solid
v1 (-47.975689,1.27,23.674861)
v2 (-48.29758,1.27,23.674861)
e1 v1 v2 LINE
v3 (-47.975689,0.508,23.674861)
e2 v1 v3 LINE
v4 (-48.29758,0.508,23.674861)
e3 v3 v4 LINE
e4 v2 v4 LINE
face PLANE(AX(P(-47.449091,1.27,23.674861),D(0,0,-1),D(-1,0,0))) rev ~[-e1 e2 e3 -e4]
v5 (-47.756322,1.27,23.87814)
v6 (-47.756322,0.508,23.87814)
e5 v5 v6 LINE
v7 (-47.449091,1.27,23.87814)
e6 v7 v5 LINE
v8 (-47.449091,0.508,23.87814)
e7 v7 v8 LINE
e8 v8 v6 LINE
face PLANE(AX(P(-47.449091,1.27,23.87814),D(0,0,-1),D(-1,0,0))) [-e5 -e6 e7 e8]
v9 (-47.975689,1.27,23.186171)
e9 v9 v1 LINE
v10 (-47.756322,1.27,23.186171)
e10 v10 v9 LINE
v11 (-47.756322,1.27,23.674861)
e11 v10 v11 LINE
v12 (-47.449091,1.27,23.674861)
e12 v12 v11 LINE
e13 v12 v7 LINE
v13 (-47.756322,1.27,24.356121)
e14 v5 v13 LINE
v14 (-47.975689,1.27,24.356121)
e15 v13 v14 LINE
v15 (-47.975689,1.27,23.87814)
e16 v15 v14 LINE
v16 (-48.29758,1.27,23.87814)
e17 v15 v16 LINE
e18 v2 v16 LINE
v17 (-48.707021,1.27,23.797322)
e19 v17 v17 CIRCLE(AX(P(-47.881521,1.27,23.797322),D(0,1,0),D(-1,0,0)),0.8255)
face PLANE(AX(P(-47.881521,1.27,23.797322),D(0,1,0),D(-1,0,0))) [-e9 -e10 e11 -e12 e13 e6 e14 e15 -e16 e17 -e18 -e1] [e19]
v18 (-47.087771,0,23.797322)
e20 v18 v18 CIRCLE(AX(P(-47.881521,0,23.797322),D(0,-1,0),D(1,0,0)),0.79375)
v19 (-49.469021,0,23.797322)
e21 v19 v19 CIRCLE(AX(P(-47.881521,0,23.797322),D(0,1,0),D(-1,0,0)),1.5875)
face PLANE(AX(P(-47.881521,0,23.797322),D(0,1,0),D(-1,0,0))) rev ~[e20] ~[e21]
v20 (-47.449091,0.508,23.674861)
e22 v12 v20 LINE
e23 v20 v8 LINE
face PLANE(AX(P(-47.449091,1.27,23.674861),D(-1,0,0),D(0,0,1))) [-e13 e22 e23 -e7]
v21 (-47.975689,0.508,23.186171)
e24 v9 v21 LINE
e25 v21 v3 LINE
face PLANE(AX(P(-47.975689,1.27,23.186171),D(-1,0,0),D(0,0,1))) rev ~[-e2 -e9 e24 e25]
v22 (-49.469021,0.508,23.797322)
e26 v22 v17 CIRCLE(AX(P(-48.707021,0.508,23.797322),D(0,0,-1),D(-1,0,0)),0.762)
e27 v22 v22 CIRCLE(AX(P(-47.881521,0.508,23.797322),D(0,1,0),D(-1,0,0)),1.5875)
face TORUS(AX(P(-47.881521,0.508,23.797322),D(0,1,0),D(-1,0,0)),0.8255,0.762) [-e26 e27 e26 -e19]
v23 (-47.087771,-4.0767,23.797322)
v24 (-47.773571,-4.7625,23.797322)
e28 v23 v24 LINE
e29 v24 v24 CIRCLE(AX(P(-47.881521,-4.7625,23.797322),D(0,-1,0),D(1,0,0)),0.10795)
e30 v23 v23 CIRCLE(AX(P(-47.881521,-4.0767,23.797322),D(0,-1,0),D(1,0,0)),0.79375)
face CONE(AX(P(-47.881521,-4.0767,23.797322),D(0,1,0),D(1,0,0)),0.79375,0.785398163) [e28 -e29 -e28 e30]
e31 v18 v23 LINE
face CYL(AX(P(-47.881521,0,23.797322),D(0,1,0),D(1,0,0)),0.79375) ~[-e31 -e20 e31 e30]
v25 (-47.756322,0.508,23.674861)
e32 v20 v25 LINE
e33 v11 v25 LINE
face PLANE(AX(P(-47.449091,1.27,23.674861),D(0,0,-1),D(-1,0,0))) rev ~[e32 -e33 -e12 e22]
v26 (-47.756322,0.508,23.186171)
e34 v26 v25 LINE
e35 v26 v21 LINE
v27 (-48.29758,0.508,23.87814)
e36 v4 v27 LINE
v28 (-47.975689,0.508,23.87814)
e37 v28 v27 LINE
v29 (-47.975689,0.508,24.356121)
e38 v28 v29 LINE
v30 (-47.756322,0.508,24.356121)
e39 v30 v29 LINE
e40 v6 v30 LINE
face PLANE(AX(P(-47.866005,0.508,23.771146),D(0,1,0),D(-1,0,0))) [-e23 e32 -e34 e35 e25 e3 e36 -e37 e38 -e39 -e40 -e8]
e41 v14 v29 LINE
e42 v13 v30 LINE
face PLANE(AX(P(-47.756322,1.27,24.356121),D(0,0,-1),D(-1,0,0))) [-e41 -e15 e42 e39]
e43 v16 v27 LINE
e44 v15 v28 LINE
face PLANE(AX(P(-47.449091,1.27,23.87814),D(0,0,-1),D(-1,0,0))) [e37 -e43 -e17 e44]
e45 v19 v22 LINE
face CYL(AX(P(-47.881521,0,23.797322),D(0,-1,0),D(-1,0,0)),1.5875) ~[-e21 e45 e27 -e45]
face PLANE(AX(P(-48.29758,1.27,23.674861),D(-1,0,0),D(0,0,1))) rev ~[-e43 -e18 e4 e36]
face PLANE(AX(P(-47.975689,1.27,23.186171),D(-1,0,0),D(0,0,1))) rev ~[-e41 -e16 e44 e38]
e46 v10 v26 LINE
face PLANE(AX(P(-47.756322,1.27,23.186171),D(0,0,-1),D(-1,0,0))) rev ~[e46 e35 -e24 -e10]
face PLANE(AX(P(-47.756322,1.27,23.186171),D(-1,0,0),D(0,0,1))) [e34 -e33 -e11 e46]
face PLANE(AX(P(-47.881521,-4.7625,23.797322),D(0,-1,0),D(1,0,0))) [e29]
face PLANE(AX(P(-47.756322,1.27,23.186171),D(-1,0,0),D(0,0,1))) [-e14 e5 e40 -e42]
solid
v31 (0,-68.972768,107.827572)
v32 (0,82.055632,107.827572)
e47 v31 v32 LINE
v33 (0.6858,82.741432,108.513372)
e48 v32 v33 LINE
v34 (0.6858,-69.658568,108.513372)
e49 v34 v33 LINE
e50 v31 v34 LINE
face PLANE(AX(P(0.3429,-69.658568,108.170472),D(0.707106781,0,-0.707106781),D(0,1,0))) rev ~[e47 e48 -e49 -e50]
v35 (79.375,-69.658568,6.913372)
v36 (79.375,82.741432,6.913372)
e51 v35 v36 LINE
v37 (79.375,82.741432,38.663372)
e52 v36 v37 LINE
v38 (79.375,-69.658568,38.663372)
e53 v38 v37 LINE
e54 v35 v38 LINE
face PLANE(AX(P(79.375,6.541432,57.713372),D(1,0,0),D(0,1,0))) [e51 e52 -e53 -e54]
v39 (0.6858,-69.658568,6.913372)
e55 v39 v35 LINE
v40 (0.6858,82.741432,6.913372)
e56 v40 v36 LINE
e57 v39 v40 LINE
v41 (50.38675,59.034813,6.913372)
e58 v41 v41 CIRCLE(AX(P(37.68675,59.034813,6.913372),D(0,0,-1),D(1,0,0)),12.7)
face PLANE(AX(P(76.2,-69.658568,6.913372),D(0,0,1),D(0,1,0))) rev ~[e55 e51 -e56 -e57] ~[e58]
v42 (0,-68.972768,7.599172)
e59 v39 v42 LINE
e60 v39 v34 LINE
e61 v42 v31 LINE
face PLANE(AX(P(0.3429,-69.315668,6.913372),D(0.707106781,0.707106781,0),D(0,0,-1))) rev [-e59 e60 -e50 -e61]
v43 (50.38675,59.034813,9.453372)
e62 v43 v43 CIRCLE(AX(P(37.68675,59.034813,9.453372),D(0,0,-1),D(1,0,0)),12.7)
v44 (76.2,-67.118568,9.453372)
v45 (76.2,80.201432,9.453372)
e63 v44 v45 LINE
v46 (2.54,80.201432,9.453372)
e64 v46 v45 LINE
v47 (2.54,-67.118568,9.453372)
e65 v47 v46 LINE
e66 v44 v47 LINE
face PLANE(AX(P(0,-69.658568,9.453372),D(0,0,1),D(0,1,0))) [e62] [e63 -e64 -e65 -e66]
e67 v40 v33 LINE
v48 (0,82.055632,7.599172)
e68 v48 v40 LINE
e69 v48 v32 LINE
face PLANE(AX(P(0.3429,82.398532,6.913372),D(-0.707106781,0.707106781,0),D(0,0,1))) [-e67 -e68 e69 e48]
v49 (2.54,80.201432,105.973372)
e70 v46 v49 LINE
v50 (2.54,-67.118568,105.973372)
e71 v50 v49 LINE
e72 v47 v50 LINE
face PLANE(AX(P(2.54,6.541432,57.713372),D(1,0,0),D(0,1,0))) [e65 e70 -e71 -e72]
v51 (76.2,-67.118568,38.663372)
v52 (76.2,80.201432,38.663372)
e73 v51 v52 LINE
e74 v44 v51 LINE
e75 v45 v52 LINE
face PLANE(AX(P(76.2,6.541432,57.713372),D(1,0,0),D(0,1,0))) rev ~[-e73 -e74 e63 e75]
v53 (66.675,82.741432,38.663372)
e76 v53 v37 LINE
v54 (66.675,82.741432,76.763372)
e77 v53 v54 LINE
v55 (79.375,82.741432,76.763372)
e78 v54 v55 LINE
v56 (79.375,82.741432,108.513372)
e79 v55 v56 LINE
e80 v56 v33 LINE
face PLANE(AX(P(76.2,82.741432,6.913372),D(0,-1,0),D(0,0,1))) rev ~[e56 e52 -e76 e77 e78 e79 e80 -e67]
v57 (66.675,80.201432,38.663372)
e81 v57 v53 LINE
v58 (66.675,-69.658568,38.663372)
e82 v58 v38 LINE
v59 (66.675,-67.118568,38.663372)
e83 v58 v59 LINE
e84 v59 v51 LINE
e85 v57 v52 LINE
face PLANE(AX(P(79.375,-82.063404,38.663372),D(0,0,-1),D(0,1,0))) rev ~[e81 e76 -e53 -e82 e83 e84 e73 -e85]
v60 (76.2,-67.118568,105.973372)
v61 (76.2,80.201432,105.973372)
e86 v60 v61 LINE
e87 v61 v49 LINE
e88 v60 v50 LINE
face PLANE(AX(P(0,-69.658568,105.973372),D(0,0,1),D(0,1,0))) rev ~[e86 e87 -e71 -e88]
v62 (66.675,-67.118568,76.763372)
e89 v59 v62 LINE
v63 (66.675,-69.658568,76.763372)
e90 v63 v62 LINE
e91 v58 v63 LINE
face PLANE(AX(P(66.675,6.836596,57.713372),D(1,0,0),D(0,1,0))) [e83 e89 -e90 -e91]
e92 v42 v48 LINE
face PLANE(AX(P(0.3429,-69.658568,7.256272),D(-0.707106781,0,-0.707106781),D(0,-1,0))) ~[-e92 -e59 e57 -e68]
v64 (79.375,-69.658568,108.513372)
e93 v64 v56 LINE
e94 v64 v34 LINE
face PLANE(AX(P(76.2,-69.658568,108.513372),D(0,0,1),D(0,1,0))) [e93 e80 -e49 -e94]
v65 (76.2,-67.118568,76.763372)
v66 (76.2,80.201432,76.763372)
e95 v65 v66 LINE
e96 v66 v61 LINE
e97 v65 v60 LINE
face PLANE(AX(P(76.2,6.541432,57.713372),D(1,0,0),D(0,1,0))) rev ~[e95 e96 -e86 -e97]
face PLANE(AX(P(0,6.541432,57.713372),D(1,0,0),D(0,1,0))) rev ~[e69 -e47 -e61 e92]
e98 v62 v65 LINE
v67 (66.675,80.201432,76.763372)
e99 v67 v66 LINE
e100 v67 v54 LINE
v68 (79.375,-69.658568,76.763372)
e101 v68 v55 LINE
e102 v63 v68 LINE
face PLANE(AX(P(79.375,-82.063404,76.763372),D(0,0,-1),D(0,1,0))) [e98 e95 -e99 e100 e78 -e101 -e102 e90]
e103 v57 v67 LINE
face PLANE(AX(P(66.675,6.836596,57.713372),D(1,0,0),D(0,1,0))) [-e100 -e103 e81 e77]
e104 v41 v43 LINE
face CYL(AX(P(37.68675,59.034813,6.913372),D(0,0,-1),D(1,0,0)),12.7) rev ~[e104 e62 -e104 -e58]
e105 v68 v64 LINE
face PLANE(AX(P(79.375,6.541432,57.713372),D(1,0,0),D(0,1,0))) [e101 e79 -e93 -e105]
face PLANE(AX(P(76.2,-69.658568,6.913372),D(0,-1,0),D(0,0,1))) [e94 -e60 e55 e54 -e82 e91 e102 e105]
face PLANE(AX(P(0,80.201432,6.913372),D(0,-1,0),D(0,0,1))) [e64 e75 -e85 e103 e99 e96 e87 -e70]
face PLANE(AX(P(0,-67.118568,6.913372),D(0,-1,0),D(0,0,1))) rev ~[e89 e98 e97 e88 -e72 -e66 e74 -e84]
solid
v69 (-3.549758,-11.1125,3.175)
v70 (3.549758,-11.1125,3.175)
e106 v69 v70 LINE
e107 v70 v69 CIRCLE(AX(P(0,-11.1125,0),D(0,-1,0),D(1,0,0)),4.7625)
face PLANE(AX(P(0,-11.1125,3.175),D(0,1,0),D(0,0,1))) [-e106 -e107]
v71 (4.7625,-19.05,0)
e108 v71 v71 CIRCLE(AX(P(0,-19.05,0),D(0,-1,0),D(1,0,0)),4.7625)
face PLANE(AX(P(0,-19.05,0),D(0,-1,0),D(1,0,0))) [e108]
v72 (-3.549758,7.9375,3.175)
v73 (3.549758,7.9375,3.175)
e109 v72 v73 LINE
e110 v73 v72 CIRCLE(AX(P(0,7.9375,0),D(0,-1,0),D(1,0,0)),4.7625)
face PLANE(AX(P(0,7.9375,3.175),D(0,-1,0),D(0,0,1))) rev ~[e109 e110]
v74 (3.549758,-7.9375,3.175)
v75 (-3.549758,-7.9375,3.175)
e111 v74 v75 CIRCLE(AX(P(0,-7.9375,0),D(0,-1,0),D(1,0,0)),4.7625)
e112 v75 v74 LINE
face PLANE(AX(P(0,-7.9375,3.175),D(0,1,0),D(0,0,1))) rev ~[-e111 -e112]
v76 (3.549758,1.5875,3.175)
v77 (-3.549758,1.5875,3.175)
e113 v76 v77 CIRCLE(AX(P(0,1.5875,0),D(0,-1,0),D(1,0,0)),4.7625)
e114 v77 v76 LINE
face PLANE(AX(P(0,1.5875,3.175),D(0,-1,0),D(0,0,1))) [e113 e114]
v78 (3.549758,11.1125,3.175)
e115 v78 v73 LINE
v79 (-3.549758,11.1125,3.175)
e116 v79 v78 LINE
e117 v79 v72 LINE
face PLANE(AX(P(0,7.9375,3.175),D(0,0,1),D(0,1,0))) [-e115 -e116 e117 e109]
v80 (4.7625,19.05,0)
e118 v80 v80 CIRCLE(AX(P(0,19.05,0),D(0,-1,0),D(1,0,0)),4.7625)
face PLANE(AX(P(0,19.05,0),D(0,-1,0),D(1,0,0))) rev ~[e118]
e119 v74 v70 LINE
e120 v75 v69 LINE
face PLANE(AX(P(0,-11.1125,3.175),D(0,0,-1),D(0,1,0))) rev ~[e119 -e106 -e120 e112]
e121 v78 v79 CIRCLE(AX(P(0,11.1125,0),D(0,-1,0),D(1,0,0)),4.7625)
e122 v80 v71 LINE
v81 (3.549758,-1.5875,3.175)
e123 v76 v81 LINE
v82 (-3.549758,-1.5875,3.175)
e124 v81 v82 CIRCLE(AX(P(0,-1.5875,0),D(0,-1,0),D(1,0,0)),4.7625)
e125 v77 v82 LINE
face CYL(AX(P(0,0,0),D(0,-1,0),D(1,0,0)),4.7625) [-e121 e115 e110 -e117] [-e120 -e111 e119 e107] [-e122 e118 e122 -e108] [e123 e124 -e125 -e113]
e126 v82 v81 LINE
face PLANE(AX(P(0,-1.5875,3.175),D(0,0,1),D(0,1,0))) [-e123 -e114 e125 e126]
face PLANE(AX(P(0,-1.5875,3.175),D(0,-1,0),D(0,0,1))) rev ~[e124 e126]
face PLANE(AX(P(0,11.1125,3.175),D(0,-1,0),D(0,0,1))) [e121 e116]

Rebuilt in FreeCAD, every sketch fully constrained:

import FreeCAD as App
import Part
import Sketcher

V = App.Vector
Q = App.Units.Quantity


def edges_at(feature, points):
    """Names of the edges that pass closest to the given points."""
    edges = feature.Shape.Edges
    near = lambda p: min(range(len(edges)), key=lambda i: edges[i].distToShape(Part.Vertex(*p))[0])
    return sorted({f"Edge{near(p) + 1}" for p in points})


def faces_at(feature, points):
    """Names of the faces that lie closest to the given points."""
    faces = feature.Shape.Faces
    near = lambda p: min(range(len(faces)), key=lambda i: faces[i].distToShape(Part.Vertex(*p))[0])
    return sorted({f"Face{near(p) + 1}" for p in points})


def add_polygon(sketch, points):
    """Adds a closed chain of lines whose ends are joined by coincident constraints."""
    first, n = sketch.GeometryCount, len(points)
    for a, b in zip(points, points[1:] + points[:1]):
        sketch.addGeometry(Part.LineSegment(App.Vector(*a, 0), App.Vector(*b, 0)), False)
    for i in range(n):
        sketch.addConstraint(Sketcher.Constraint("Coincident", first + i, 2, first + (i + 1) % n, 1))

doc = App.newDocument("Part")
body = doc.addObject("PartDesign::Body", "Body")

# Sketch on XZ plane
sketch1 = body.newObject("Sketcher::SketchObject", "Sketch")
sketch1.AttachmentSupport = (doc.getObject("XZ_Plane"), [""])
sketch1.MapMode = "FlatFace"
sketch1.addGeometry(Part.Circle(V(0, 0, 0), V(0, 0, 1), 4.8), False)
sketch1.addConstraint([
    Sketcher.Constraint("Coincident", 0, 3, -1, 1),
    Sketcher.Constraint("Diameter", 0, Q("0.375 in")),
])
pad1 = body.newObject("PartDesign::Pad", "Pad")
pad1.Profile = sketch1
pad1.Length = Q("1.5 in")
pad1.Midplane = True

# Sketch on YZ plane
sketch2 = body.newObject("Sketcher::SketchObject", "Sketch001")
sketch2.AttachmentSupport = (doc.getObject("YZ_Plane"), [""])
sketch2.MapMode = "FlatFace"
add_polygon(sketch2, [(-1.6, 6.5), (-1.6, 3.2), (1.6, 3.2), (1.6, 6.5)])  # lines 0-3
add_polygon(sketch2, [(7.9, 6.5), (7.9, 3.2), (11.1, 3.2), (11.1, 6.5)])  # lines 4-7
add_polygon(sketch2, [(-11.1, 6.5), (-11.1, 3.2), (-7.9, 3.2), (-7.9, 6.5)])  # lines 8-11
sketch2.addConstraint([
    Sketcher.Constraint("Vertical", 0),
    Sketcher.Constraint("Horizontal", 1),
    Sketcher.Constraint("Vertical", 2),
    Sketcher.Constraint("Horizontal", 3),
    Sketcher.Constraint("Vertical", 4),
    Sketcher.Constraint("Horizontal", 5),
    Sketcher.Constraint("Vertical", 6),
    Sketcher.Constraint("Horizontal", 7),
    Sketcher.Constraint("Vertical", 8),
    Sketcher.Constraint("Horizontal", 9),
    Sketcher.Constraint("Vertical", 10),
    Sketcher.Constraint("Horizontal", 11),
    Sketcher.Constraint("Symmetric", 5, 2, 8, 2, -2),
    Sketcher.Constraint("Symmetric", 7, 2, 10, 2, -2),
    Sketcher.Constraint("Horizontal", 1, 2, 4, 2),
    Sketcher.Constraint("Horizontal", 3, 2, 6, 2),
    Sketcher.Constraint("Equal", 3, 5),
    Sketcher.Constraint("DistanceX", 0, 2, 5, 2, Q("0.5 in")),
    Sketcher.Constraint("DistanceX", 8, 2, 1, 2, Q("0.5 in")),
    Sketcher.Constraint("DistanceX", 1, 1, 1, 2, Q("0.125 in")),
    Sketcher.Constraint("DistanceY", -1, 1, 0, 2, Q("0.125 in")),
    Sketcher.Constraint("DistanceY", 0, 2, 0, 1, 3.307291),
])
pocket1 = body.newObject("PartDesign::Pocket", "Pocket")
pocket1.Profile = sketch2
pocket1.Length = Q("1 in")
pocket1.Midplane = True
body2 = doc.addObject("PartDesign::Body", "Body001")

# Sketch on YZ plane
sketch3 = body2.newObject("Sketcher::SketchObject", "Sketch002")
sketch3.AttachmentSupport = (doc.getObject("YZ_Plane001"), [""])
sketch3.MapMode = "FlatFace"
add_polygon(sketch3, [(-70, 109), (-70, 7), (83, 7), (83, 109)])  # lines 0-3
sketch3.addConstraint([
    Sketcher.Constraint("Vertical", 0),
    Sketcher.Constraint("Horizontal", 1),
    Sketcher.Constraint("Vertical", 2),
    Sketcher.Constraint("Horizontal", 3),
    Sketcher.Constraint("DistanceX", 1, 1, 1, 2, Q("6 in")),
    Sketcher.Constraint("DistanceY", 0, 2, 0, 1, Q("4 in")),
    Sketcher.Constraint("DistanceX", 0, 2, -1, 1, 69.658568),
    Sketcher.Constraint("DistanceY", -1, 1, 0, 2, 6.913372),
])
pad2 = body2.newObject("PartDesign::Pad", "Pad001")
pad2.Profile = sketch3
pad2.Length = Q("3 in")
doc.recompute()

thickness = body2.newObject("PartDesign::Thickness", "Thickness")
thickness.Base = (pad2, faces_at(pad2, [(76.2, 6.541, 57.713)]))
thickness.Value = Q("0.1 in")
thickness.Reversed = True
thickness.Join = "Arc"

# Sketch on YZ plane
sketch4 = body2.newObject("Sketcher::SketchObject", "Sketch003")
sketch4.AttachmentSupport = (doc.getObject("YZ_Plane001"), [""])
sketch4.MapMode = "FlatFace"
sketch4.AttachmentOffset = App.Placement(V(0, 0, 3 * 25.4), App.Rotation())
add_polygon(sketch4, [(-70, 109), (-70, 7), (83, 7), (83, 109)])  # lines 0-3
sketch4.addConstraint([
    Sketcher.Constraint("Vertical", 0),
    Sketcher.Constraint("Horizontal", 1),
    Sketcher.Constraint("Vertical", 2),
    Sketcher.Constraint("Horizontal", 3),
    Sketcher.Constraint("DistanceX", 1, 1, 1, 2, Q("6 in")),
    Sketcher.Constraint("DistanceY", 0, 2, 0, 1, Q("4 in")),
    Sketcher.Constraint("DistanceX", 0, 2, -1, 1, 69.658568),
    Sketcher.Constraint("DistanceY", -1, 1, 0, 2, 6.913372),
])
pad3 = body2.newObject("PartDesign::Pad", "Pad002")
pad3.Profile = sketch4
pad3.Length = Q("0.125 in")

# Sketch on YZ plane
sketch5 = body2.newObject("Sketcher::SketchObject", "Sketch004")
sketch5.AttachmentSupport = (doc.getObject("YZ_Plane001"), [""])
sketch5.MapMode = "FlatFace"
sketch5.AttachmentOffset = App.Placement(V(0, 0, 3.125 * 25.4), App.Rotation())
add_polygon(sketch5, [(-82, 77), (-82, 39), (96, 39), (96, 77)])  # lines 0-3
sketch5.addConstraint([
    Sketcher.Constraint("Vertical", 0),
    Sketcher.Constraint("Horizontal", 1),
    Sketcher.Constraint("Vertical", 2),
    Sketcher.Constraint("Horizontal", 3),
    Sketcher.Constraint("DistanceX", 1, 1, 1, 2, Q("7 in")),
    Sketcher.Constraint("DistanceY", 0, 2, 0, 1, Q("1.5 in")),
    Sketcher.Constraint("DistanceX", 0, 2, -1, 1, 82.063404),
    Sketcher.Constraint("DistanceY", -1, 1, 0, 2, 38.663372),
])
pocket2 = body2.newObject("PartDesign::Pocket", "Pocket001")
pocket2.Profile = sketch5
pocket2.Length = Q("0.5 in")

# Sketch on XY plane
sketch6 = body2.newObject("Sketcher::SketchObject", "Sketch005")
sketch6.AttachmentSupport = (doc.getObject("XY_Plane001"), [""])
sketch6.MapMode = "FlatFace"
sketch6.AttachmentOffset = App.Placement(V(0, 0, 6.913372), App.Rotation())
sketch6.addGeometry(Part.Circle(V(38, 59, 0), V(0, 0, 1), 13), False)
sketch6.addConstraint([
    Sketcher.Constraint("Diameter", 0, Q("1 in")),
    Sketcher.Constraint("DistanceX", -1, 1, 0, 3, 37.68675),
    Sketcher.Constraint("DistanceY", -1, 1, 0, 3, 59.034813),
])
pocket3 = body2.newObject("PartDesign::Pocket", "Pocket002")
pocket3.Profile = sketch6
pocket3.Length = Q("1 in")
pocket3.Reversed = True
doc.recompute()

chamfer = body2.newObject("PartDesign::Chamfer", "Chamfer")
chamfer.Base = (pocket3, edges_at(pocket3, [
    (0, 82.741, 57.713),
    (0, 6.541, 108.513),
    (0, -69.659, 57.713),
    (0, 6.541, 6.913),
]))
chamfer.Size = Q("0.027 in")
body3 = doc.addObject("PartDesign::Body", "Body002")

# Sketch on XZ plane
sketch7 = body3.newObject("Sketcher::SketchObject", "Sketch006")
sketch7.AttachmentSupport = (doc.getObject("XZ_Plane002"), [""])
sketch7.MapMode = "FlatFace"
sketch7.addGeometry(Part.Circle(V(-47.9, 23.8, 0), V(0, 0, 1), 0.8), False)
sketch7.addConstraint([
    Sketcher.Constraint("Diameter", 0, Q("0.0625 in")),
    Sketcher.Constraint("DistanceX", 0, 3, -1, 1, 47.881521),
    Sketcher.Constraint("DistanceY", -1, 1, 0, 3, 23.797322),
])
pad4 = body3.newObject("PartDesign::Pad", "Pad003")
pad4.Profile = sketch7
pad4.Length = Q("0.1875 in")
doc.recompute()

chamfer2 = body3.newObject("PartDesign::Chamfer", "Chamfer001")
chamfer2.Base = (pad4, edges_at(pad4, [(-48.675, -4.763, 23.797)]))
chamfer2.Size = Q("0.027 in")

# Sketch on XZ plane
sketch8 = body3.newObject("Sketcher::SketchObject", "Sketch007")
sketch8.AttachmentSupport = (doc.getObject("XZ_Plane002"), [""])
sketch8.MapMode = "FlatFace"
sketch8.addGeometry(Part.Circle(V(-47.9, 23.8, 0), V(0, 0, 1), 1.6), False)
sketch8.addConstraint([
    Sketcher.Constraint("Diameter", 0, Q("0.125 in")),
    Sketcher.Constraint("DistanceX", 0, 3, -1, 1, 47.881521),
    Sketcher.Constraint("DistanceY", -1, 1, 0, 3, 23.797322),
])
pad5 = body3.newObject("PartDesign::Pad", "Pad004")
pad5.Profile = sketch8
pad5.Length = Q("0.05 in")
pad5.Reversed = True
doc.recompute()

fillet = body3.newObject("PartDesign::Fillet", "Fillet")
fillet.Base = (pad5, edges_at(pad5, [(-46.294, 1.27, 23.797)]))
fillet.Radius = Q("0.03 in")

# Sketch on XZ plane
sketch9 = body3.newObject("Sketcher::SketchObject", "Sketch008")
sketch9.AttachmentSupport = (doc.getObject("XZ_Plane002"), [""])
sketch9.MapMode = "FlatFace"
sketch9.AttachmentOffset = App.Placement(V(0, 0, -0.05 * 25.4), App.Rotation())
add_polygon(sketch9, [(-47.76, 24.36), (-47.76, 23.19), (-47.98, 23.19), (-47.98, 24.36)])  # lines 0-3
sketch9.addConstraint([
    Sketcher.Constraint("Vertical", 0),
    Sketcher.Constraint("Horizontal", 1),
    Sketcher.Constraint("Vertical", 2),
    Sketcher.Constraint("Horizontal", 3),
    Sketcher.Constraint("DistanceY", 0, 2, 0, 1, 1.16995),
    Sketcher.Constraint("DistanceX", 1, 2, 1, 1, 0.219367),
    Sketcher.Constraint("DistanceX", 0, 2, -1, 1, 47.756322),
    Sketcher.Constraint("DistanceY", -1, 1, 0, 2, 23.186171),
])
pocket4 = body3.newObject("PartDesign::Pocket", "Pocket003")
pocket4.Profile = sketch9
pocket4.Length = Q("0.03 in")
pocket4.Reversed = True

# Sketch on XZ plane
sketch10 = body3.newObject("Sketcher::SketchObject", "Sketch009")
sketch10.AttachmentSupport = (doc.getObject("XZ_Plane002"), [""])
sketch10.MapMode = "FlatFace"
sketch10.AttachmentOffset = App.Placement(V(0, 0, -0.05 * 25.4), App.Rotation())
add_polygon(sketch10, [(-47.45, 23.88), (-47.45, 23.67), (-48.3, 23.67), (-48.3, 23.88)])  # lines 0-3
sketch10.addConstraint([
    Sketcher.Constraint("Vertical", 0),
    Sketcher.Constraint("Horizontal", 1),
    Sketcher.Constraint("Vertical", 2),
    Sketcher.Constraint("Horizontal", 3),
    Sketcher.Constraint("DistanceX", 1, 2, 1, 1, 0.848489),
    Sketcher.Constraint("DistanceY", 0, 2, 0, 1, 0.20328),
    Sketcher.Constraint("DistanceX", 0, 2, -1, 1, 47.449091),
    Sketcher.Constraint("DistanceY", -1, 1, 0, 2, 23.674861),
])
pocket5 = body3.newObject("PartDesign::Pocket", "Pocket004")
pocket5.Profile = sketch10
pocket5.Length = Q("0.03 in")
pocket5.Reversed = True

doc.recompute()
